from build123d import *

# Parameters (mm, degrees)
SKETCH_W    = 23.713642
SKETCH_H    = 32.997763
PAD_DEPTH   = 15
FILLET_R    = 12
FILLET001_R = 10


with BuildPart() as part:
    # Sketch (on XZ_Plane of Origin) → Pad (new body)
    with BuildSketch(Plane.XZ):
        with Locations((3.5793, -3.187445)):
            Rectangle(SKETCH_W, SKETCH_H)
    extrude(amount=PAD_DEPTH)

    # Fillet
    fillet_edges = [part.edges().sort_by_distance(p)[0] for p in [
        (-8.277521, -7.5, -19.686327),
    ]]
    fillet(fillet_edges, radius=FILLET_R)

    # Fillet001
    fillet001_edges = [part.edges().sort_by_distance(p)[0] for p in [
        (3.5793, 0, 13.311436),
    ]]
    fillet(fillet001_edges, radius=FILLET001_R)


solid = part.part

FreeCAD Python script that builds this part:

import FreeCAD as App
import Part
import Sketcher

V = App.Vector
Q = App.Units.Quantity


def edges_at(feature, points):
    """Names of the edges that pass closest to the given points."""
    edges = feature.Shape.Edges
    near = lambda p: min(range(len(edges)), key=lambda i: edges[i].distToShape(Part.Vertex(*p))[0])
    return sorted({f"Edge{near(p) + 1}" for p in points})


def add_polygon(sketch, points):
    """Adds a closed chain of lines whose ends are joined by coincident constraints."""
    first, n = sketch.GeometryCount, len(points)
    for a, b in zip(points, points[1:] + points[:1]):
        sketch.addGeometry(Part.LineSegment(App.Vector(*a, 0), App.Vector(*b, 0)), False)
    for i in range(n):
        sketch.addConstraint(Sketcher.Constraint("Coincident", first + i, 2, first + (i + 1) % n, 1))

doc = App.newDocument("Part")
body = doc.addObject("PartDesign::Body", "Body")

sketch1 = body.newObject("Sketcher::SketchObject", "Sketch")
sketch1.AttachmentSupport = (doc.getObject("XZ_Plane"), [""])
sketch1.MapMode = "FlatFace"
add_polygon(sketch1, [(-8.277521, 13.311436), (-8.277521, -19.686326), (15.436121, -19.686326), (15.436121, 13.311436)])
sketch1.addConstraint([
    Sketcher.Constraint("Vertical", 0),
    Sketcher.Constraint("Horizontal", 1),
    Sketcher.Constraint("Vertical", 2),
    Sketcher.Constraint("Horizontal", 3),
    Sketcher.Constraint("DistanceX", 1, 1, 1, 2, Q("23.713642 mm")),
    Sketcher.Constraint("DistanceY", 0, 2, 0, 1, Q("32.997763 mm")),
    Sketcher.Constraint("DistanceX", 0, 2, -1, 1, Q("8.277521 mm")),
    Sketcher.Constraint("DistanceY", 0, 2, -1, 1, Q("19.686326 mm")),
])
pad1 = body.newObject("PartDesign::Pad", "Pad")
pad1.Profile = sketch1
pad1.Length = 15
doc.recompute()

fillet = body.newObject("PartDesign::Fillet", "Fillet")
fillet.Base = (pad1, edges_at(pad1, [(-8.278, -7.5, -19.686)]))
fillet.Radius = 12
doc.recompute()

fillet2 = body.newObject("PartDesign::Fillet", "Fillet001")
fillet2.Base = (fillet, edges_at(fillet, [(3.579, 0, 13.311)]))
fillet2.Radius = 10

doc.recompute()
